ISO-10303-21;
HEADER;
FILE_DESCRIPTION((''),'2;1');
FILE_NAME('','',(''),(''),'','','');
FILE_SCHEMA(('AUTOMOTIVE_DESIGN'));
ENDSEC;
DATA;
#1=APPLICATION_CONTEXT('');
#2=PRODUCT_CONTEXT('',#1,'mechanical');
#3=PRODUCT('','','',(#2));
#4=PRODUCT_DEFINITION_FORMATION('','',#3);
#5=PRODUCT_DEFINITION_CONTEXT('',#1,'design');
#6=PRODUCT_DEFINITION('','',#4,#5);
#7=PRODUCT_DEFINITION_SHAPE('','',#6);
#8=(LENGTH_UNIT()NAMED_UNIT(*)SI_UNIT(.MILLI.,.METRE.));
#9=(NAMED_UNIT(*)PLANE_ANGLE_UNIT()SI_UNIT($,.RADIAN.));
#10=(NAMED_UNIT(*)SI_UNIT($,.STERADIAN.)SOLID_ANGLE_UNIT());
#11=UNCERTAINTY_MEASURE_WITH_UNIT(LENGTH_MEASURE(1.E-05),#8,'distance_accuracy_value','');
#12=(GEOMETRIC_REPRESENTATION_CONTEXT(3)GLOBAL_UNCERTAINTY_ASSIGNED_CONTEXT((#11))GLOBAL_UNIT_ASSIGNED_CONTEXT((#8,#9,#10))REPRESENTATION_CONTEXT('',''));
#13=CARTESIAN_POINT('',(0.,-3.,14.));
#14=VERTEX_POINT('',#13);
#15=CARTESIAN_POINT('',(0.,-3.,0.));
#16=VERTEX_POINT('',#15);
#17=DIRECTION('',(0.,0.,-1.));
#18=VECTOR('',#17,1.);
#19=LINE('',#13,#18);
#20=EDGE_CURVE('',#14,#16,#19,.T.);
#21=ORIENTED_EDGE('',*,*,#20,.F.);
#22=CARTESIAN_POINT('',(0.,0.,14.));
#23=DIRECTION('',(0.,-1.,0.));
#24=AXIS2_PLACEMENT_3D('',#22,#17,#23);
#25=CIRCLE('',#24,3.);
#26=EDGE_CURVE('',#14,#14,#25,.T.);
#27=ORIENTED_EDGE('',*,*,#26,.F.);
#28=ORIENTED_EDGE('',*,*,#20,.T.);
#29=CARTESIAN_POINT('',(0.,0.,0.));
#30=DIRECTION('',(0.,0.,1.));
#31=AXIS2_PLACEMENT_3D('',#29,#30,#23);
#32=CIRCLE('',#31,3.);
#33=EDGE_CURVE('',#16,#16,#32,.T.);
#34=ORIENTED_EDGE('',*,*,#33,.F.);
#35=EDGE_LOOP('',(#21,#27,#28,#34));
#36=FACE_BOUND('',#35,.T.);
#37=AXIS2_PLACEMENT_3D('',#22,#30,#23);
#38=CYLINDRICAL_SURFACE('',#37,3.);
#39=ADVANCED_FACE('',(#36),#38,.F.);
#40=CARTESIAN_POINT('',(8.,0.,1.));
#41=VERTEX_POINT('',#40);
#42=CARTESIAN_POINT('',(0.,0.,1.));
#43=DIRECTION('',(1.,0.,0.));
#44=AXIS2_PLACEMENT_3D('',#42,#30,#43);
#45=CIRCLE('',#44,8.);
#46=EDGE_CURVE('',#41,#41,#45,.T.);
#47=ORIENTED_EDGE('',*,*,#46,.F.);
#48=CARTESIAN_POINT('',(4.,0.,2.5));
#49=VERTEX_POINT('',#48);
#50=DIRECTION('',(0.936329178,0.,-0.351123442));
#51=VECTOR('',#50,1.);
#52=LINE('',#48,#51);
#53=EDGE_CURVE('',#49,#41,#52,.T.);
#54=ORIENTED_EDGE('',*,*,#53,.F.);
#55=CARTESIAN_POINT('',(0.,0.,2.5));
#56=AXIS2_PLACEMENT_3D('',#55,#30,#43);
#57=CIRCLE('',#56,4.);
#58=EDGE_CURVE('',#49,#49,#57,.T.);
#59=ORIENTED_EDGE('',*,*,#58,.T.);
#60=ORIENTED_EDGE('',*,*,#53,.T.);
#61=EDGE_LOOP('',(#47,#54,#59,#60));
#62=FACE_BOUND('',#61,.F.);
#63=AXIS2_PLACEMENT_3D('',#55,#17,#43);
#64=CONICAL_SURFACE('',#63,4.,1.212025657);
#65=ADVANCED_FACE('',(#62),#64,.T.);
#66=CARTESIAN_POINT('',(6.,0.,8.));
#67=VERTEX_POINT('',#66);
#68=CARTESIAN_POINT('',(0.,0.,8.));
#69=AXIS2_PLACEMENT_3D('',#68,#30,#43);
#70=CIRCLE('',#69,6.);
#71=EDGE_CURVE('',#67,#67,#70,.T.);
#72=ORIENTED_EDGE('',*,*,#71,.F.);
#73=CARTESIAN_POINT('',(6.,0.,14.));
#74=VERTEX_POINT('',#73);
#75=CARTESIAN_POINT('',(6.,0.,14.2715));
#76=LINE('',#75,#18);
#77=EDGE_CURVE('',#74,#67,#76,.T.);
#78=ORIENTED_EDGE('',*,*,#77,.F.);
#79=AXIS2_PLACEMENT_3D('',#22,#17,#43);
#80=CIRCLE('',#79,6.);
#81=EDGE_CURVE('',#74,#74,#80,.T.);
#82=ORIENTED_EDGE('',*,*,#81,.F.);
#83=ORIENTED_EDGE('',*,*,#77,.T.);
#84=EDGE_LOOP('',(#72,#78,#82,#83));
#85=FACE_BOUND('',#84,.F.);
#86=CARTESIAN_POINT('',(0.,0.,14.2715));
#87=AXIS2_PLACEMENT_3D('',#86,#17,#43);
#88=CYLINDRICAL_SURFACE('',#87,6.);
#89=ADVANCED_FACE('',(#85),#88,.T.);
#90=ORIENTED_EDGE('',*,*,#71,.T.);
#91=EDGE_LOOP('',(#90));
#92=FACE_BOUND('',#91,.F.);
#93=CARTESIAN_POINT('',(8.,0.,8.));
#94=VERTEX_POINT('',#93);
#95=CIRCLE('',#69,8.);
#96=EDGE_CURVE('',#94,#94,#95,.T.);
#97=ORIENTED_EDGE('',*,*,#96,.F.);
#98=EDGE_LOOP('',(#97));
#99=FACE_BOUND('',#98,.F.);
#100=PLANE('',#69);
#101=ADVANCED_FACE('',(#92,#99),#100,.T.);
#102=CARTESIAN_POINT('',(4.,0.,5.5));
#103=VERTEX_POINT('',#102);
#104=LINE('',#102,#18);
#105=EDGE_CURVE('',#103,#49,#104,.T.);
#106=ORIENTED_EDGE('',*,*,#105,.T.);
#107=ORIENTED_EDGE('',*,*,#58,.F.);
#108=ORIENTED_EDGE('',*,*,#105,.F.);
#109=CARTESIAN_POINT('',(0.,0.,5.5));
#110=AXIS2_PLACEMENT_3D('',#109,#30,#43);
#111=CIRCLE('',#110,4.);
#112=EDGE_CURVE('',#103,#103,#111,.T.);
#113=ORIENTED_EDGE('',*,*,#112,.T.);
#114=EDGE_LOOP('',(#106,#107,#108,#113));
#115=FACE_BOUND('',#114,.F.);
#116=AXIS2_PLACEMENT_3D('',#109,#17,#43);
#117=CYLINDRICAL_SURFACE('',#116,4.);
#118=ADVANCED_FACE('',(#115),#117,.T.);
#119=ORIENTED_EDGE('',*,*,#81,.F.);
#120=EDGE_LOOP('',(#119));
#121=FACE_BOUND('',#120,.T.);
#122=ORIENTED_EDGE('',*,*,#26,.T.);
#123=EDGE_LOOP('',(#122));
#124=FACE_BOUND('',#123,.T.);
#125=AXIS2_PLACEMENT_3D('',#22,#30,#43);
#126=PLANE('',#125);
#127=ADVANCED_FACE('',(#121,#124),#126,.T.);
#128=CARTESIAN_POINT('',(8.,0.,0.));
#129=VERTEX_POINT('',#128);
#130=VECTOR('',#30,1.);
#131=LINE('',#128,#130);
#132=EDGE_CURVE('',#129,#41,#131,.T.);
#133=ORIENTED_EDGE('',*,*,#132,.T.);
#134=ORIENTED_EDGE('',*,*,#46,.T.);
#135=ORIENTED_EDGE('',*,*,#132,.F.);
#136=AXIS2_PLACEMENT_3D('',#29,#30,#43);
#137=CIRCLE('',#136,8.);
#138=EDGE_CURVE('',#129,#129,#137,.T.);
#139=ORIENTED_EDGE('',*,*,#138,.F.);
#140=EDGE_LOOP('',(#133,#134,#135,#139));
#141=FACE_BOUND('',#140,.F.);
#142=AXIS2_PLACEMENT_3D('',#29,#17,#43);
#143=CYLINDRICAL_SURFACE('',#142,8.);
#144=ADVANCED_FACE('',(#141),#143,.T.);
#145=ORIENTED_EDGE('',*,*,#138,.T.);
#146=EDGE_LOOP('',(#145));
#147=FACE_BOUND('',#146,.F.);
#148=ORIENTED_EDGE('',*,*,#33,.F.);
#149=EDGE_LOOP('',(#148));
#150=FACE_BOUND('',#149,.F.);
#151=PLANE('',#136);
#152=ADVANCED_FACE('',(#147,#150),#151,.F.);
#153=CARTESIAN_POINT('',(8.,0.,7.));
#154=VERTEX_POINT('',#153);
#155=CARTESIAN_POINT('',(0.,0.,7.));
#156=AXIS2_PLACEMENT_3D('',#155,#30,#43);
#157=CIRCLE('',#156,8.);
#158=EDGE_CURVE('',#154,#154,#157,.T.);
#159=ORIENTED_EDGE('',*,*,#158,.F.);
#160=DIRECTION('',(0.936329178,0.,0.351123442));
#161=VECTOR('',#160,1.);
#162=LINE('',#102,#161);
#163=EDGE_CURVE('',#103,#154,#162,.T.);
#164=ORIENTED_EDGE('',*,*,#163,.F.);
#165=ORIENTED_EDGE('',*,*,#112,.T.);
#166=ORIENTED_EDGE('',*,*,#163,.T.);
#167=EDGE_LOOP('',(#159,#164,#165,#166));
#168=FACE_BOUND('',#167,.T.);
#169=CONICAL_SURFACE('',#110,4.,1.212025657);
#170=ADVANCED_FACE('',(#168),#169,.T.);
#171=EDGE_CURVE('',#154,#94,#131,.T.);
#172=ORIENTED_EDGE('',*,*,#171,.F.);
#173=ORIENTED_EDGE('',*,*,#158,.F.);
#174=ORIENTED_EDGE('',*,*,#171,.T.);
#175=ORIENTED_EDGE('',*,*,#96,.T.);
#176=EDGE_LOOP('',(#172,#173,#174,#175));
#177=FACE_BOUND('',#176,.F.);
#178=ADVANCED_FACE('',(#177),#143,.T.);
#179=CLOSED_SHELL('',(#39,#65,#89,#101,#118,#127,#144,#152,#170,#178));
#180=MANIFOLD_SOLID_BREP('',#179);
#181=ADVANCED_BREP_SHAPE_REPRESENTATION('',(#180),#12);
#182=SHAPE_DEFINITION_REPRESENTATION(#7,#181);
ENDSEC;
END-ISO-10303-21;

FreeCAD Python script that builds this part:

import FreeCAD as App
import Part
import Sketcher


def add_polygon(sketch, points):
    """Adds a closed chain of lines whose ends are joined by coincident constraints."""
    first, n = sketch.GeometryCount, len(points)
    for a, b in zip(points, points[1:] + points[:1]):
        sketch.addGeometry(Part.LineSegment(App.Vector(*a, 0), App.Vector(*b, 0)), False)
    for i in range(n):
        sketch.addConstraint(Sketcher.Constraint("Coincident", first + i, 2, first + (i + 1) % n, 1))

doc = App.newDocument("Part")
params = doc.addObject("Spreadsheet::Sheet", "Params")
for row, (alias, value) in enumerate([
    ("sketch1_diameter", "16 mm"),
    ("pad1_length", "14 mm"),
    ("sketch2_width", "2 mm"),
    ("sketch2_height", "3 mm"),
    ("sketch2_height2", "6 mm"),
    ("groove_angle", "360 deg"),
    ("sketch3_diameter", "6 mm"),
    ("hole_diameter", "6 mm"),
], start=1):
    params.set(f"A{row}", alias)
    params.set(f"B{row}", "=" + value)
    params.setAlias(f"B{row}", alias)

body = doc.addObject("PartDesign::Body", "Body")

# Sketch on XY plane
sketch1 = doc.addObject("Sketcher::SketchObject", "Sketch")
body.addObject(sketch1)
sketch1.AttachmentSupport = (doc.XY_Plane, [""])
sketch1.MapMode = "FlatFace"
sketch1.addGeometry(Part.Circle(App.Vector(0, 0, 0), App.Vector(0, 0, 1), 8), False)
sketch1.addConstraint(Sketcher.Constraint("Coincident", 0, 3, -1, 1))
sketch1.addConstraint(Sketcher.Constraint("Diameter", 0, 16.0))
sketch1.setExpression("Constraints[1]", "Params.sketch1_diameter")
pad1 = doc.addObject("PartDesign::Pad", "Pad")
body.addObject(pad1)
pad1.Profile = sketch1
pad1.setExpression("Length", "Params.pad1_length")

# Sketch on XZ plane
sketch2 = doc.addObject("Sketcher::SketchObject", "Sketch001")
body.addObject(sketch2)
sketch2.AttachmentSupport = (doc.XZ_Plane, [""])
sketch2.MapMode = "FlatFace"
add_polygon(sketch2, [(8, 8), (8, 14.3), (6, 14.3), (6, 8)])  # lines 0-3
add_polygon(sketch2, [(8, 7), (4, 5.5), (4, 2.5), (8, 1)])  # lines 4-7
sketch2.addConstraint(Sketcher.Constraint("Vertical", 0))
sketch2.addConstraint(Sketcher.Constraint("Horizontal", 1))
sketch2.addConstraint(Sketcher.Constraint("Vertical", 2))
sketch2.addConstraint(Sketcher.Constraint("Horizontal", 3))
sketch2.addConstraint(Sketcher.Constraint("Vertical", 5))
sketch2.addConstraint(Sketcher.Constraint("Vertical", 7))
sketch2.addConstraint(Sketcher.Constraint("Vertical", 3, 2, 6, 2))
sketch2.addConstraint(Sketcher.Constraint("Equal", 4, 6))
sketch2.addConstraint(Sketcher.Constraint("DistanceX", -1, 1, 4, 2, 4.0))
sketch2.addConstraint(Sketcher.Constraint("DistanceX", 4, 2, 3, 2, 4.0))
sketch2.addConstraint(Sketcher.Constraint("DistanceX", 1, 2, 1, 1, 2.0))
sketch2.addConstraint(Sketcher.Constraint("DistanceY", 5, 2, 5, 1, 3.0))
sketch2.addConstraint(Sketcher.Constraint("DistanceY", 7, 1, 7, 2, 6.0))
sketch2.addConstraint(Sketcher.Constraint("DistanceY", -1, 1, 2, 2, 8.0))
sketch2.addConstraint(Sketcher.Constraint("DistanceY", -1, 1, 6, 2, 1.0))
sketch2.addConstraint(Sketcher.Constraint("DistanceY", 0, 1, 0, 2, 6.2715))
sketch2.setExpression("Constraints[18]", "Params.sketch2_width")
sketch2.setExpression("Constraints[19]", "Params.sketch2_height")
sketch2.setExpression("Constraints[20]", "Params.sketch2_height2")
groove = doc.addObject("PartDesign::Groove", "Groove")
body.addObject(groove)
groove.Profile = sketch2
groove.ReferenceAxis = (sketch2, ["V_Axis"])
groove.setExpression("Angle", "Params.groove_angle")

# Sketch on XY plane
sketch3 = doc.addObject("Sketcher::SketchObject", "Sketch002")
body.addObject(sketch3)
sketch3.AttachmentSupport = (doc.XY_Plane, [""])
sketch3.MapMode = "FlatFace"
sketch3.AttachmentOffset = App.Placement(App.Vector(0, 0, 14), App.Rotation())
sketch3.addGeometry(Part.Circle(App.Vector(0, 0, 0), App.Vector(0, 0, 1), 3), False)
sketch3.addConstraint(Sketcher.Constraint("Coincident", 0, 3, -1, 1))
sketch3.addConstraint(Sketcher.Constraint("Diameter", 0, 6.0))
sketch3.setExpression("Constraints[1]", "Params.sketch3_diameter")
doc.recompute()
hole = doc.addObject("PartDesign::Hole", "Hole")
body.addObject(hole)
hole.Profile = sketch3
hole.ThreadType = "None"
hole.setExpression("Diameter", "Params.hole_diameter")
hole.DepthType = "ThroughAll"

doc.recompute()
